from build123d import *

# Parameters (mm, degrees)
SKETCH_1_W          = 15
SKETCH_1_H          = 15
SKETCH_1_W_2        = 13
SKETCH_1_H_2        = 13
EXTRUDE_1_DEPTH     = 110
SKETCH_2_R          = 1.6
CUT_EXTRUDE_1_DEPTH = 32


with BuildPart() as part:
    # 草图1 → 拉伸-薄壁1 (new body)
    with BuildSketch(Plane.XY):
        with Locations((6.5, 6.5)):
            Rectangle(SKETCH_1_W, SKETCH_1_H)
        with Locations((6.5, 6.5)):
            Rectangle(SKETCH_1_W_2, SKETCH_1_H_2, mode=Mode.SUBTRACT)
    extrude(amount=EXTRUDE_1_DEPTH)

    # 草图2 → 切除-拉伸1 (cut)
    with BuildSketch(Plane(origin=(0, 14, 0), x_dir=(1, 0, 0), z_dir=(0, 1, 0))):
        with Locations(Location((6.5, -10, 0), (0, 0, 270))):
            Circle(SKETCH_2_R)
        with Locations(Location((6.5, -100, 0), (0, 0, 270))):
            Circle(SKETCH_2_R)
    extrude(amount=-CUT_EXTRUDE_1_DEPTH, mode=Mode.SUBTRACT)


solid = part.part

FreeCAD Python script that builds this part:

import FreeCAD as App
import Part
import Sketcher
Q = App.Units.Quantity

doc = App.newDocument("Part")
params = doc.addObject("Spreadsheet::Sheet", "Params")
for row, (alias, value) in enumerate([
    ("sketch1_width", "15 mm"),
    ("sketch1_width2", "13 mm"),
    ("pad1_length", "110 mm"),
    ("sketch2_diameter", "3.2 mm"),
    ("pocket1_length", "32 mm"),
], start=1):
    params.set(f"A{row}", alias)
    params.set(f"B{row}", "=" + value)
    params.setAlias(f"B{row}", alias)

body = doc.addObject("PartDesign::Body", "Body")

# Sketch on XY plane
sketch1 = body.newObject("Sketcher::SketchObject", "Sketch")
sketch1.AttachmentSupport = (doc.getObject("XY_Plane"), [""])
sketch1.MapMode = "FlatFace"
sketch1.addGeometry([
    Part.LineSegment(App.Vector(-1, 14, 0), App.Vector(-1, -1, 0)),  # 0
    Part.LineSegment(App.Vector(-1, -1, 0), App.Vector(14, -1, 0)),  # 1
    Part.LineSegment(App.Vector(14, -1, 0), App.Vector(14, 14, 0)),  # 2
    Part.LineSegment(App.Vector(14, 14, 0), App.Vector(-1, 14, 0)),  # 3
    Part.LineSegment(App.Vector(13, 0, 0), App.Vector(0, 0, 0)),  # 4
    Part.LineSegment(App.Vector(0, 0, 0), App.Vector(0, 13, 0)),  # 5
    Part.LineSegment(App.Vector(0, 13, 0), App.Vector(13, 13, 0)),  # 6
    Part.LineSegment(App.Vector(13, 13, 0), App.Vector(13, 0, 0)),  # 7
], False)
sketch1.addConstraint([
    Sketcher.Constraint("Coincident", 0, 2, 1, 1),
    Sketcher.Constraint("Coincident", 1, 2, 2, 1),
    Sketcher.Constraint("Coincident", 2, 2, 3, 1),
    Sketcher.Constraint("Coincident", 3, 2, 0, 1),
    Sketcher.Constraint("Coincident", 4, 2, 5, 1),
    Sketcher.Constraint("Coincident", 5, 2, 6, 1),
    Sketcher.Constraint("Coincident", 6, 2, 7, 1),
    Sketcher.Constraint("Coincident", 7, 2, 4, 1),
    Sketcher.Constraint("Vertical", 0),
    Sketcher.Constraint("Horizontal", 1),
    Sketcher.Constraint("Vertical", 2),
    Sketcher.Constraint("Horizontal", 3),
    Sketcher.Constraint("Horizontal", 4),
    Sketcher.Constraint("Vertical", 5),
    Sketcher.Constraint("Horizontal", 6),
    Sketcher.Constraint("Vertical", 7),
    Sketcher.Constraint("Coincident", 4, 2, -1, 1),
    Sketcher.Constraint("Equal", 3, 0),
    Sketcher.Constraint("Equal", 6, 5),
    Sketcher.Constraint("DistanceX", 1, 1, 1, 2, Q("15 mm")),
    Sketcher.Constraint("DistanceX", 4, 2, 4, 1, Q("13 mm")),
    Sketcher.Constraint("DistanceX", 0, 2, -1, 1, Q("1 mm")),
    Sketcher.Constraint("DistanceY", 0, 2, -1, 1, Q("1 mm")),
])
sketch1.setExpression("Constraints[19]", "Params.sketch1_width")
sketch1.setExpression("Constraints[20]", "Params.sketch1_width2")
pad1 = body.newObject("PartDesign::Pad", "Pad")
pad1.Profile = sketch1
pad1.setExpression("Length", "Params.pad1_length")

# Sketch on XZ plane
sketch2 = body.newObject("Sketcher::SketchObject", "Sketch001")
sketch2.AttachmentSupport = (doc.getObject("XZ_Plane"), [""])
sketch2.MapMode = "FlatFace"
sketch2.AttachmentOffset = App.Placement(App.Vector(0, 0, -14), App.Rotation())
sketch2.addGeometry([
    Part.Circle(App.Vector(6.5, 10, 0), App.Vector(0, 0, 1), 1.6),
    Part.Circle(App.Vector(6.5, 100, 0), App.Vector(0, 0, 1), 1.6),
], False)
sketch2.addConstraint([
    Sketcher.Constraint("Equal", 0, 1),
    Sketcher.Constraint("Vertical", 0, 3, 1, 3),
    Sketcher.Constraint("Diameter", 0, Q("3.2 mm")),
    Sketcher.Constraint("DistanceY", -1, 1, 0, 3, Q("10 mm")),
    Sketcher.Constraint("DistanceY", -1, 1, 1, 3, Q("100 mm")),
    Sketcher.Constraint("DistanceX", -1, 1, 0, 3, Q("6.5 mm")),
])
sketch2.setExpression("Constraints[2]", "Params.sketch2_diameter")
pocket1 = body.newObject("PartDesign::Pocket", "Pocket")
pocket1.Profile = sketch2
pocket1.setExpression("Length", "Params.pocket1_length")
pocket1.Reversed = True

doc.recompute()
